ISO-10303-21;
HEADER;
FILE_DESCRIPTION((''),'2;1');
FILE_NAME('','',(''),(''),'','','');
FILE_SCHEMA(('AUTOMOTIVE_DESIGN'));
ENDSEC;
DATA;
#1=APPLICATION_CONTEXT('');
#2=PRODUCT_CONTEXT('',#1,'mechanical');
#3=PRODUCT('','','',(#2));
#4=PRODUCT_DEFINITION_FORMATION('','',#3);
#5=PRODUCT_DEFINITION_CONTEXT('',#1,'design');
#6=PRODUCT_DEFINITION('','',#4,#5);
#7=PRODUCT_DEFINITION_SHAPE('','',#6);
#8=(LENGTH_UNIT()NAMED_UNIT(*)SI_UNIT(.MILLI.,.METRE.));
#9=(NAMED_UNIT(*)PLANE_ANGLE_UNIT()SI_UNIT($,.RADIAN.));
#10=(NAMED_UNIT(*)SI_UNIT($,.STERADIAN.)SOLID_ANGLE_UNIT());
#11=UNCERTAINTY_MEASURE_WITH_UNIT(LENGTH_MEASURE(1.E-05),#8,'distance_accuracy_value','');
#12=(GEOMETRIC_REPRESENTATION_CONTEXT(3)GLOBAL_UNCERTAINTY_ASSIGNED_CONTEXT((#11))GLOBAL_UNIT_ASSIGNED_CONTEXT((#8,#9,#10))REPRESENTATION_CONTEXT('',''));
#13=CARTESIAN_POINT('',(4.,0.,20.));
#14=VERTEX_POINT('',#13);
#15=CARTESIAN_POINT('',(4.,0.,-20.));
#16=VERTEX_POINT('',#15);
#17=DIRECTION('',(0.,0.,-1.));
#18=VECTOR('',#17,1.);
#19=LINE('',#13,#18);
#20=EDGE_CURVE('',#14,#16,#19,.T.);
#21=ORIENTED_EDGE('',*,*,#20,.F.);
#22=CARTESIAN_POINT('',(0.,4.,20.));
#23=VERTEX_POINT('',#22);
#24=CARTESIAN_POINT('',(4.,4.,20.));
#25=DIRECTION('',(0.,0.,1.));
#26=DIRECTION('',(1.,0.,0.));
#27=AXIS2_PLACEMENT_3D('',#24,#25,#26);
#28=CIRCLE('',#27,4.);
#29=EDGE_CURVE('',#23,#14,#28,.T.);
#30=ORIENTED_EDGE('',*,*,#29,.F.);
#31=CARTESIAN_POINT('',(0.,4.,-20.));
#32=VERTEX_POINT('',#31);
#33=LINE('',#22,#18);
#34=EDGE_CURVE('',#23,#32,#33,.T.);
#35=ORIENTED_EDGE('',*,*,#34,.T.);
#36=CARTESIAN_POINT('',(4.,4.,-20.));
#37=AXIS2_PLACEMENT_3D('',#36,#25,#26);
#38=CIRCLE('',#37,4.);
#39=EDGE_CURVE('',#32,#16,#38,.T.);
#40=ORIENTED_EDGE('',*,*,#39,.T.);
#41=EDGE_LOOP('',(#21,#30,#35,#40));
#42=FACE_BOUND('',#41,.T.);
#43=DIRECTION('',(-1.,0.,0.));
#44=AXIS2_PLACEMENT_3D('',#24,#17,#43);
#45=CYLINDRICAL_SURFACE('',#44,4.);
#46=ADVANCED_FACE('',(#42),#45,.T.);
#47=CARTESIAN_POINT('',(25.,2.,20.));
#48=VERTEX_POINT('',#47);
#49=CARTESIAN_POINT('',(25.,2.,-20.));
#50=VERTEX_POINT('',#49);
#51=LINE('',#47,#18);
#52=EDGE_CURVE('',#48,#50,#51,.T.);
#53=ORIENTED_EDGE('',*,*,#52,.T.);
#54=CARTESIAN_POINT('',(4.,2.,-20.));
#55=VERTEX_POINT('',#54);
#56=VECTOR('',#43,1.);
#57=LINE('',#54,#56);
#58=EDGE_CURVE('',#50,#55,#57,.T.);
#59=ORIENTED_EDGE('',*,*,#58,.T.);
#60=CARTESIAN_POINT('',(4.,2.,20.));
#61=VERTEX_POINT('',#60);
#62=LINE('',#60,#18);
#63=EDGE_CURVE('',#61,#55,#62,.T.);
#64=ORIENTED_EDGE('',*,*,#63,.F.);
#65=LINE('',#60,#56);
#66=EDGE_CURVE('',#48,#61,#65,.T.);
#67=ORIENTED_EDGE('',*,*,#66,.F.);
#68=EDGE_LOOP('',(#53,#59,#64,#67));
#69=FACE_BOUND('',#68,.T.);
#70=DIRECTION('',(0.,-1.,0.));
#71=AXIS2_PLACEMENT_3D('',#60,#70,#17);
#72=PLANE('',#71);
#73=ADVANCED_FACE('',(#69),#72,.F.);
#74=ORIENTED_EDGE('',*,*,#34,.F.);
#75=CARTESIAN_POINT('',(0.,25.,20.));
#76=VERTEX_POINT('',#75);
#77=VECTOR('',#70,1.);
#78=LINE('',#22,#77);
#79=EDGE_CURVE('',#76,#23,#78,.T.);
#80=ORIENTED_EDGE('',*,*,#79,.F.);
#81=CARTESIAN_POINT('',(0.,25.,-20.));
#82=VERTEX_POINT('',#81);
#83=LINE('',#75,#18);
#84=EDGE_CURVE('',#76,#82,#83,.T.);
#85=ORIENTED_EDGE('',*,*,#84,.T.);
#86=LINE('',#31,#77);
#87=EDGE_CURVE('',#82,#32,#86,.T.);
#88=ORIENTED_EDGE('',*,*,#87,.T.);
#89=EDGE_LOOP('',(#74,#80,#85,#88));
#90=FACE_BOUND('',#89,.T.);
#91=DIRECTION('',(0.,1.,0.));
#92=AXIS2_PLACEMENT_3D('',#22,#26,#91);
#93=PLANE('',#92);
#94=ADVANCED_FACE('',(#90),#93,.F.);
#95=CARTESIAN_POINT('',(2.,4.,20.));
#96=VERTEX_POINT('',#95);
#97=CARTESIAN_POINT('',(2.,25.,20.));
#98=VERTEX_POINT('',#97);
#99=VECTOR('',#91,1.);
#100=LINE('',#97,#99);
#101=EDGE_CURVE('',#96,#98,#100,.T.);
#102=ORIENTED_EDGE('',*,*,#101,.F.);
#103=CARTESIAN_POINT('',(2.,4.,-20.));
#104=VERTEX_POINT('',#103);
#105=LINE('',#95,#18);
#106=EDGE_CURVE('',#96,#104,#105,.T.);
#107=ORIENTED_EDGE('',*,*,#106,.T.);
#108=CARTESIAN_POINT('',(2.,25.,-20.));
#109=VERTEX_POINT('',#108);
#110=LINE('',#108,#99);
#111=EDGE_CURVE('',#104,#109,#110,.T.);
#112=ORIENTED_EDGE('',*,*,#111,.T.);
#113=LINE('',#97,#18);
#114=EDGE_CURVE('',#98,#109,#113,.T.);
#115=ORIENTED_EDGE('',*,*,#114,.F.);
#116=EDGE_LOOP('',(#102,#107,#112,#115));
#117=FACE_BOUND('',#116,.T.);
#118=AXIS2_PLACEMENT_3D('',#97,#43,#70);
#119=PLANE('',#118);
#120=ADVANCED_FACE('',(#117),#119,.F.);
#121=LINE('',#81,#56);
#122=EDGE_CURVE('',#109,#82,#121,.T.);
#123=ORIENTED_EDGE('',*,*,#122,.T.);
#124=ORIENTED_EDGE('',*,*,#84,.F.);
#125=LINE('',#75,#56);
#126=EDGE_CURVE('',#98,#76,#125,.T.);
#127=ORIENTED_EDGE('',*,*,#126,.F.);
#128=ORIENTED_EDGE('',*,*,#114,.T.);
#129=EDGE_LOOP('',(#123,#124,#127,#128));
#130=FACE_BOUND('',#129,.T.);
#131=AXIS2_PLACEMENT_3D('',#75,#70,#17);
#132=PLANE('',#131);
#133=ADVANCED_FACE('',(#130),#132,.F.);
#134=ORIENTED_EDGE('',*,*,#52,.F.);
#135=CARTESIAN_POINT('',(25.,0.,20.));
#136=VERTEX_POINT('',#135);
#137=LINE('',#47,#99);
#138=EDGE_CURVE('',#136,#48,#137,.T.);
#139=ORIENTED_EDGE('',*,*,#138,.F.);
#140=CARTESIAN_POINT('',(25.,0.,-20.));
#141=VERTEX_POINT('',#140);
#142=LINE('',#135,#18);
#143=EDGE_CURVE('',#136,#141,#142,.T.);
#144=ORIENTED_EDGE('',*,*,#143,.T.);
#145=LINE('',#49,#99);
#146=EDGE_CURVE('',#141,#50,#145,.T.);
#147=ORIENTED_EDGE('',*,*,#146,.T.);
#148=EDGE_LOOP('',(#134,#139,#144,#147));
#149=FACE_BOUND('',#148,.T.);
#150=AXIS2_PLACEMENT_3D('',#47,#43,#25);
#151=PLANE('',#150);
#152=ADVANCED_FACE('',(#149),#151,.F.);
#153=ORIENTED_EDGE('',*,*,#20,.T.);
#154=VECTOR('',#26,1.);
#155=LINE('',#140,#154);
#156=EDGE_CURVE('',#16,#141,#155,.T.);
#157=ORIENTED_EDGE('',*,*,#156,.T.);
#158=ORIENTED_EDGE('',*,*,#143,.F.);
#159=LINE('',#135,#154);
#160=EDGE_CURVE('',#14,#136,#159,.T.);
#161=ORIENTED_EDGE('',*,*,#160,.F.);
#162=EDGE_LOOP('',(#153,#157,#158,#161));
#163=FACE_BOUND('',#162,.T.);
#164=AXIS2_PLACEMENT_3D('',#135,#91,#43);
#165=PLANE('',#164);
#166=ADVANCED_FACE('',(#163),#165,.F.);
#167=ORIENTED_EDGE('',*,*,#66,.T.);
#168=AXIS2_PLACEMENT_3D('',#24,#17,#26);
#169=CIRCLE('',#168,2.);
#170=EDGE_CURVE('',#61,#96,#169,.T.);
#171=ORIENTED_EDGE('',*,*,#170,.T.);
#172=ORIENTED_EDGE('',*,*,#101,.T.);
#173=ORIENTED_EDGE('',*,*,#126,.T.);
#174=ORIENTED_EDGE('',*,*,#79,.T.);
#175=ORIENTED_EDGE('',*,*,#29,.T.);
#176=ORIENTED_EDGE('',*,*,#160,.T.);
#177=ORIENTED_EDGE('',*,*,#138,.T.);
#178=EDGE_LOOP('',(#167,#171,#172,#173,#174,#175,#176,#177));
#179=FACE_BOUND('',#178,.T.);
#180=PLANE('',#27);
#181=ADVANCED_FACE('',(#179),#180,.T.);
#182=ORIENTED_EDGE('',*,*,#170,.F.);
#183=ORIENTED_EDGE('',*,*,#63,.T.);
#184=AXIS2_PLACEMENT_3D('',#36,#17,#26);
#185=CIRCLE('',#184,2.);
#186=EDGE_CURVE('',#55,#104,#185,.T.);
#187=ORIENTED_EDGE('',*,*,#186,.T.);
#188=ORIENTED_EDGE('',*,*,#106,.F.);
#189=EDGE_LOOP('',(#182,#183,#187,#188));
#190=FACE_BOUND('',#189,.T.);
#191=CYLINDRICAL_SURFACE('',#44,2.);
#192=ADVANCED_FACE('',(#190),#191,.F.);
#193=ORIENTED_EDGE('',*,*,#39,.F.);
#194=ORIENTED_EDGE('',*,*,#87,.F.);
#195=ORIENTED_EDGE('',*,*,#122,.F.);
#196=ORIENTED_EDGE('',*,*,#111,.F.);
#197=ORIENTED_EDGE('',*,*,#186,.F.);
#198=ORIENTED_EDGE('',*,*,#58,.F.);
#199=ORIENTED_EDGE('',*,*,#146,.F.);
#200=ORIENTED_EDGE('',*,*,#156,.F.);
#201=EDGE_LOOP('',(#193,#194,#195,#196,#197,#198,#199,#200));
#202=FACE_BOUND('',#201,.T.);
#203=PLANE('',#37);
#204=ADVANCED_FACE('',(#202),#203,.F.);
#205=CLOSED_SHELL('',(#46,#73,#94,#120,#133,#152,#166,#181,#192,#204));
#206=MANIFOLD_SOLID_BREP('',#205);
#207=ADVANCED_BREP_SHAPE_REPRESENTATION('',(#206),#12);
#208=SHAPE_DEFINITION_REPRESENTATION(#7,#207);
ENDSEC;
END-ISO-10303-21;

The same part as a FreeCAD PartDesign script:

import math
import FreeCAD as App
import Part
import Sketcher

V = App.Vector
Q = App.Units.Quantity

doc = App.newDocument("Part")
params = doc.addObject("Spreadsheet::Sheet", "Params")
for row, (alias, value) in enumerate([
    ("sketch1_radius", "4 mm"),
    ("sketch1_radius2", "2 mm"),
    ("sketch1_width", "21 mm"),
    ("pad1_length", "40 mm"),
], start=1):
    params.set(f"A{row}", alias)
    params.set(f"B{row}", "=" + value)
    params.setAlias(f"B{row}", alias)

body = doc.addObject("PartDesign::Body", "Body")

sketch1 = body.newObject("Sketcher::SketchObject", "Sketch")
sketch1.AttachmentSupport = (doc.getObject("XY_Plane"), [""])
sketch1.MapMode = "FlatFace"
sketch1.addGeometry([
    Part.LineSegment(V(0, 25, 0), V(0, 4, 0)),
    Part.ArcOfCircle(Part.Circle(V(4, 4, 0), V(0, 0, 1), 4), math.radians(180), math.radians(270)),
    Part.LineSegment(V(4, 0, 0), V(25, 0, 0)),
    Part.LineSegment(V(25, 0, 0), V(25, 2, 0)),
    Part.LineSegment(V(25, 2, 0), V(4, 2, 0)),
    Part.ArcOfCircle(Part.Circle(V(4, 4, 0), V(0, 0, 1), 2), math.radians(-180), math.radians(-90)),
    Part.LineSegment(V(2, 4, 0), V(2, 25, 0)),
    Part.LineSegment(V(2, 25, 0), V(0, 25, 0)),
], False)
sketch1.addConstraint([
    Sketcher.Constraint("Tangent", 0, 2, 1, 1),
    Sketcher.Constraint("Tangent", 1, 2, 2, 1),
    Sketcher.Constraint("Coincident", 2, 2, 3, 1),
    Sketcher.Constraint("Coincident", 3, 2, 4, 1),
    Sketcher.Constraint("Tangent", 4, 2, 5, 2),
    Sketcher.Constraint("Tangent", 5, 1, 6, 1),
    Sketcher.Constraint("Coincident", 6, 2, 7, 1),
    Sketcher.Constraint("Coincident", 7, 2, 0, 1),
    Sketcher.Constraint("Vertical", 0),
    Sketcher.Constraint("Horizontal", 2),
    Sketcher.Constraint("Vertical", 3),
    Sketcher.Constraint("Horizontal", 4),
    Sketcher.Constraint("Vertical", 6),
    Sketcher.Constraint("Horizontal", 7),
    Sketcher.Constraint("Coincident", 5, 3, 1, 3),
    Sketcher.Constraint("PointOnObject", 0, 2, -2),
    Sketcher.Constraint("PointOnObject", 1, 2, -1),
    Sketcher.Constraint("Equal", 4, 0),
    Sketcher.Constraint("Radius", 1, Q("4 mm")),
    Sketcher.Constraint("Radius", 5, Q("2 mm")),
    Sketcher.Constraint("DistanceX", 2, 1, 2, 2, Q("21 mm")),
])
sketch1.setExpression("Constraints[18]", "Params.sketch1_radius")
sketch1.setExpression("Constraints[19]", "Params.sketch1_radius2")
sketch1.setExpression("Constraints[20]", "Params.sketch1_width")
pad1 = body.newObject("PartDesign::Pad", "Pad")
pad1.Profile = sketch1
pad1.setExpression("Length", "Params.pad1_length")
pad1.Midplane = True

doc.recompute()
